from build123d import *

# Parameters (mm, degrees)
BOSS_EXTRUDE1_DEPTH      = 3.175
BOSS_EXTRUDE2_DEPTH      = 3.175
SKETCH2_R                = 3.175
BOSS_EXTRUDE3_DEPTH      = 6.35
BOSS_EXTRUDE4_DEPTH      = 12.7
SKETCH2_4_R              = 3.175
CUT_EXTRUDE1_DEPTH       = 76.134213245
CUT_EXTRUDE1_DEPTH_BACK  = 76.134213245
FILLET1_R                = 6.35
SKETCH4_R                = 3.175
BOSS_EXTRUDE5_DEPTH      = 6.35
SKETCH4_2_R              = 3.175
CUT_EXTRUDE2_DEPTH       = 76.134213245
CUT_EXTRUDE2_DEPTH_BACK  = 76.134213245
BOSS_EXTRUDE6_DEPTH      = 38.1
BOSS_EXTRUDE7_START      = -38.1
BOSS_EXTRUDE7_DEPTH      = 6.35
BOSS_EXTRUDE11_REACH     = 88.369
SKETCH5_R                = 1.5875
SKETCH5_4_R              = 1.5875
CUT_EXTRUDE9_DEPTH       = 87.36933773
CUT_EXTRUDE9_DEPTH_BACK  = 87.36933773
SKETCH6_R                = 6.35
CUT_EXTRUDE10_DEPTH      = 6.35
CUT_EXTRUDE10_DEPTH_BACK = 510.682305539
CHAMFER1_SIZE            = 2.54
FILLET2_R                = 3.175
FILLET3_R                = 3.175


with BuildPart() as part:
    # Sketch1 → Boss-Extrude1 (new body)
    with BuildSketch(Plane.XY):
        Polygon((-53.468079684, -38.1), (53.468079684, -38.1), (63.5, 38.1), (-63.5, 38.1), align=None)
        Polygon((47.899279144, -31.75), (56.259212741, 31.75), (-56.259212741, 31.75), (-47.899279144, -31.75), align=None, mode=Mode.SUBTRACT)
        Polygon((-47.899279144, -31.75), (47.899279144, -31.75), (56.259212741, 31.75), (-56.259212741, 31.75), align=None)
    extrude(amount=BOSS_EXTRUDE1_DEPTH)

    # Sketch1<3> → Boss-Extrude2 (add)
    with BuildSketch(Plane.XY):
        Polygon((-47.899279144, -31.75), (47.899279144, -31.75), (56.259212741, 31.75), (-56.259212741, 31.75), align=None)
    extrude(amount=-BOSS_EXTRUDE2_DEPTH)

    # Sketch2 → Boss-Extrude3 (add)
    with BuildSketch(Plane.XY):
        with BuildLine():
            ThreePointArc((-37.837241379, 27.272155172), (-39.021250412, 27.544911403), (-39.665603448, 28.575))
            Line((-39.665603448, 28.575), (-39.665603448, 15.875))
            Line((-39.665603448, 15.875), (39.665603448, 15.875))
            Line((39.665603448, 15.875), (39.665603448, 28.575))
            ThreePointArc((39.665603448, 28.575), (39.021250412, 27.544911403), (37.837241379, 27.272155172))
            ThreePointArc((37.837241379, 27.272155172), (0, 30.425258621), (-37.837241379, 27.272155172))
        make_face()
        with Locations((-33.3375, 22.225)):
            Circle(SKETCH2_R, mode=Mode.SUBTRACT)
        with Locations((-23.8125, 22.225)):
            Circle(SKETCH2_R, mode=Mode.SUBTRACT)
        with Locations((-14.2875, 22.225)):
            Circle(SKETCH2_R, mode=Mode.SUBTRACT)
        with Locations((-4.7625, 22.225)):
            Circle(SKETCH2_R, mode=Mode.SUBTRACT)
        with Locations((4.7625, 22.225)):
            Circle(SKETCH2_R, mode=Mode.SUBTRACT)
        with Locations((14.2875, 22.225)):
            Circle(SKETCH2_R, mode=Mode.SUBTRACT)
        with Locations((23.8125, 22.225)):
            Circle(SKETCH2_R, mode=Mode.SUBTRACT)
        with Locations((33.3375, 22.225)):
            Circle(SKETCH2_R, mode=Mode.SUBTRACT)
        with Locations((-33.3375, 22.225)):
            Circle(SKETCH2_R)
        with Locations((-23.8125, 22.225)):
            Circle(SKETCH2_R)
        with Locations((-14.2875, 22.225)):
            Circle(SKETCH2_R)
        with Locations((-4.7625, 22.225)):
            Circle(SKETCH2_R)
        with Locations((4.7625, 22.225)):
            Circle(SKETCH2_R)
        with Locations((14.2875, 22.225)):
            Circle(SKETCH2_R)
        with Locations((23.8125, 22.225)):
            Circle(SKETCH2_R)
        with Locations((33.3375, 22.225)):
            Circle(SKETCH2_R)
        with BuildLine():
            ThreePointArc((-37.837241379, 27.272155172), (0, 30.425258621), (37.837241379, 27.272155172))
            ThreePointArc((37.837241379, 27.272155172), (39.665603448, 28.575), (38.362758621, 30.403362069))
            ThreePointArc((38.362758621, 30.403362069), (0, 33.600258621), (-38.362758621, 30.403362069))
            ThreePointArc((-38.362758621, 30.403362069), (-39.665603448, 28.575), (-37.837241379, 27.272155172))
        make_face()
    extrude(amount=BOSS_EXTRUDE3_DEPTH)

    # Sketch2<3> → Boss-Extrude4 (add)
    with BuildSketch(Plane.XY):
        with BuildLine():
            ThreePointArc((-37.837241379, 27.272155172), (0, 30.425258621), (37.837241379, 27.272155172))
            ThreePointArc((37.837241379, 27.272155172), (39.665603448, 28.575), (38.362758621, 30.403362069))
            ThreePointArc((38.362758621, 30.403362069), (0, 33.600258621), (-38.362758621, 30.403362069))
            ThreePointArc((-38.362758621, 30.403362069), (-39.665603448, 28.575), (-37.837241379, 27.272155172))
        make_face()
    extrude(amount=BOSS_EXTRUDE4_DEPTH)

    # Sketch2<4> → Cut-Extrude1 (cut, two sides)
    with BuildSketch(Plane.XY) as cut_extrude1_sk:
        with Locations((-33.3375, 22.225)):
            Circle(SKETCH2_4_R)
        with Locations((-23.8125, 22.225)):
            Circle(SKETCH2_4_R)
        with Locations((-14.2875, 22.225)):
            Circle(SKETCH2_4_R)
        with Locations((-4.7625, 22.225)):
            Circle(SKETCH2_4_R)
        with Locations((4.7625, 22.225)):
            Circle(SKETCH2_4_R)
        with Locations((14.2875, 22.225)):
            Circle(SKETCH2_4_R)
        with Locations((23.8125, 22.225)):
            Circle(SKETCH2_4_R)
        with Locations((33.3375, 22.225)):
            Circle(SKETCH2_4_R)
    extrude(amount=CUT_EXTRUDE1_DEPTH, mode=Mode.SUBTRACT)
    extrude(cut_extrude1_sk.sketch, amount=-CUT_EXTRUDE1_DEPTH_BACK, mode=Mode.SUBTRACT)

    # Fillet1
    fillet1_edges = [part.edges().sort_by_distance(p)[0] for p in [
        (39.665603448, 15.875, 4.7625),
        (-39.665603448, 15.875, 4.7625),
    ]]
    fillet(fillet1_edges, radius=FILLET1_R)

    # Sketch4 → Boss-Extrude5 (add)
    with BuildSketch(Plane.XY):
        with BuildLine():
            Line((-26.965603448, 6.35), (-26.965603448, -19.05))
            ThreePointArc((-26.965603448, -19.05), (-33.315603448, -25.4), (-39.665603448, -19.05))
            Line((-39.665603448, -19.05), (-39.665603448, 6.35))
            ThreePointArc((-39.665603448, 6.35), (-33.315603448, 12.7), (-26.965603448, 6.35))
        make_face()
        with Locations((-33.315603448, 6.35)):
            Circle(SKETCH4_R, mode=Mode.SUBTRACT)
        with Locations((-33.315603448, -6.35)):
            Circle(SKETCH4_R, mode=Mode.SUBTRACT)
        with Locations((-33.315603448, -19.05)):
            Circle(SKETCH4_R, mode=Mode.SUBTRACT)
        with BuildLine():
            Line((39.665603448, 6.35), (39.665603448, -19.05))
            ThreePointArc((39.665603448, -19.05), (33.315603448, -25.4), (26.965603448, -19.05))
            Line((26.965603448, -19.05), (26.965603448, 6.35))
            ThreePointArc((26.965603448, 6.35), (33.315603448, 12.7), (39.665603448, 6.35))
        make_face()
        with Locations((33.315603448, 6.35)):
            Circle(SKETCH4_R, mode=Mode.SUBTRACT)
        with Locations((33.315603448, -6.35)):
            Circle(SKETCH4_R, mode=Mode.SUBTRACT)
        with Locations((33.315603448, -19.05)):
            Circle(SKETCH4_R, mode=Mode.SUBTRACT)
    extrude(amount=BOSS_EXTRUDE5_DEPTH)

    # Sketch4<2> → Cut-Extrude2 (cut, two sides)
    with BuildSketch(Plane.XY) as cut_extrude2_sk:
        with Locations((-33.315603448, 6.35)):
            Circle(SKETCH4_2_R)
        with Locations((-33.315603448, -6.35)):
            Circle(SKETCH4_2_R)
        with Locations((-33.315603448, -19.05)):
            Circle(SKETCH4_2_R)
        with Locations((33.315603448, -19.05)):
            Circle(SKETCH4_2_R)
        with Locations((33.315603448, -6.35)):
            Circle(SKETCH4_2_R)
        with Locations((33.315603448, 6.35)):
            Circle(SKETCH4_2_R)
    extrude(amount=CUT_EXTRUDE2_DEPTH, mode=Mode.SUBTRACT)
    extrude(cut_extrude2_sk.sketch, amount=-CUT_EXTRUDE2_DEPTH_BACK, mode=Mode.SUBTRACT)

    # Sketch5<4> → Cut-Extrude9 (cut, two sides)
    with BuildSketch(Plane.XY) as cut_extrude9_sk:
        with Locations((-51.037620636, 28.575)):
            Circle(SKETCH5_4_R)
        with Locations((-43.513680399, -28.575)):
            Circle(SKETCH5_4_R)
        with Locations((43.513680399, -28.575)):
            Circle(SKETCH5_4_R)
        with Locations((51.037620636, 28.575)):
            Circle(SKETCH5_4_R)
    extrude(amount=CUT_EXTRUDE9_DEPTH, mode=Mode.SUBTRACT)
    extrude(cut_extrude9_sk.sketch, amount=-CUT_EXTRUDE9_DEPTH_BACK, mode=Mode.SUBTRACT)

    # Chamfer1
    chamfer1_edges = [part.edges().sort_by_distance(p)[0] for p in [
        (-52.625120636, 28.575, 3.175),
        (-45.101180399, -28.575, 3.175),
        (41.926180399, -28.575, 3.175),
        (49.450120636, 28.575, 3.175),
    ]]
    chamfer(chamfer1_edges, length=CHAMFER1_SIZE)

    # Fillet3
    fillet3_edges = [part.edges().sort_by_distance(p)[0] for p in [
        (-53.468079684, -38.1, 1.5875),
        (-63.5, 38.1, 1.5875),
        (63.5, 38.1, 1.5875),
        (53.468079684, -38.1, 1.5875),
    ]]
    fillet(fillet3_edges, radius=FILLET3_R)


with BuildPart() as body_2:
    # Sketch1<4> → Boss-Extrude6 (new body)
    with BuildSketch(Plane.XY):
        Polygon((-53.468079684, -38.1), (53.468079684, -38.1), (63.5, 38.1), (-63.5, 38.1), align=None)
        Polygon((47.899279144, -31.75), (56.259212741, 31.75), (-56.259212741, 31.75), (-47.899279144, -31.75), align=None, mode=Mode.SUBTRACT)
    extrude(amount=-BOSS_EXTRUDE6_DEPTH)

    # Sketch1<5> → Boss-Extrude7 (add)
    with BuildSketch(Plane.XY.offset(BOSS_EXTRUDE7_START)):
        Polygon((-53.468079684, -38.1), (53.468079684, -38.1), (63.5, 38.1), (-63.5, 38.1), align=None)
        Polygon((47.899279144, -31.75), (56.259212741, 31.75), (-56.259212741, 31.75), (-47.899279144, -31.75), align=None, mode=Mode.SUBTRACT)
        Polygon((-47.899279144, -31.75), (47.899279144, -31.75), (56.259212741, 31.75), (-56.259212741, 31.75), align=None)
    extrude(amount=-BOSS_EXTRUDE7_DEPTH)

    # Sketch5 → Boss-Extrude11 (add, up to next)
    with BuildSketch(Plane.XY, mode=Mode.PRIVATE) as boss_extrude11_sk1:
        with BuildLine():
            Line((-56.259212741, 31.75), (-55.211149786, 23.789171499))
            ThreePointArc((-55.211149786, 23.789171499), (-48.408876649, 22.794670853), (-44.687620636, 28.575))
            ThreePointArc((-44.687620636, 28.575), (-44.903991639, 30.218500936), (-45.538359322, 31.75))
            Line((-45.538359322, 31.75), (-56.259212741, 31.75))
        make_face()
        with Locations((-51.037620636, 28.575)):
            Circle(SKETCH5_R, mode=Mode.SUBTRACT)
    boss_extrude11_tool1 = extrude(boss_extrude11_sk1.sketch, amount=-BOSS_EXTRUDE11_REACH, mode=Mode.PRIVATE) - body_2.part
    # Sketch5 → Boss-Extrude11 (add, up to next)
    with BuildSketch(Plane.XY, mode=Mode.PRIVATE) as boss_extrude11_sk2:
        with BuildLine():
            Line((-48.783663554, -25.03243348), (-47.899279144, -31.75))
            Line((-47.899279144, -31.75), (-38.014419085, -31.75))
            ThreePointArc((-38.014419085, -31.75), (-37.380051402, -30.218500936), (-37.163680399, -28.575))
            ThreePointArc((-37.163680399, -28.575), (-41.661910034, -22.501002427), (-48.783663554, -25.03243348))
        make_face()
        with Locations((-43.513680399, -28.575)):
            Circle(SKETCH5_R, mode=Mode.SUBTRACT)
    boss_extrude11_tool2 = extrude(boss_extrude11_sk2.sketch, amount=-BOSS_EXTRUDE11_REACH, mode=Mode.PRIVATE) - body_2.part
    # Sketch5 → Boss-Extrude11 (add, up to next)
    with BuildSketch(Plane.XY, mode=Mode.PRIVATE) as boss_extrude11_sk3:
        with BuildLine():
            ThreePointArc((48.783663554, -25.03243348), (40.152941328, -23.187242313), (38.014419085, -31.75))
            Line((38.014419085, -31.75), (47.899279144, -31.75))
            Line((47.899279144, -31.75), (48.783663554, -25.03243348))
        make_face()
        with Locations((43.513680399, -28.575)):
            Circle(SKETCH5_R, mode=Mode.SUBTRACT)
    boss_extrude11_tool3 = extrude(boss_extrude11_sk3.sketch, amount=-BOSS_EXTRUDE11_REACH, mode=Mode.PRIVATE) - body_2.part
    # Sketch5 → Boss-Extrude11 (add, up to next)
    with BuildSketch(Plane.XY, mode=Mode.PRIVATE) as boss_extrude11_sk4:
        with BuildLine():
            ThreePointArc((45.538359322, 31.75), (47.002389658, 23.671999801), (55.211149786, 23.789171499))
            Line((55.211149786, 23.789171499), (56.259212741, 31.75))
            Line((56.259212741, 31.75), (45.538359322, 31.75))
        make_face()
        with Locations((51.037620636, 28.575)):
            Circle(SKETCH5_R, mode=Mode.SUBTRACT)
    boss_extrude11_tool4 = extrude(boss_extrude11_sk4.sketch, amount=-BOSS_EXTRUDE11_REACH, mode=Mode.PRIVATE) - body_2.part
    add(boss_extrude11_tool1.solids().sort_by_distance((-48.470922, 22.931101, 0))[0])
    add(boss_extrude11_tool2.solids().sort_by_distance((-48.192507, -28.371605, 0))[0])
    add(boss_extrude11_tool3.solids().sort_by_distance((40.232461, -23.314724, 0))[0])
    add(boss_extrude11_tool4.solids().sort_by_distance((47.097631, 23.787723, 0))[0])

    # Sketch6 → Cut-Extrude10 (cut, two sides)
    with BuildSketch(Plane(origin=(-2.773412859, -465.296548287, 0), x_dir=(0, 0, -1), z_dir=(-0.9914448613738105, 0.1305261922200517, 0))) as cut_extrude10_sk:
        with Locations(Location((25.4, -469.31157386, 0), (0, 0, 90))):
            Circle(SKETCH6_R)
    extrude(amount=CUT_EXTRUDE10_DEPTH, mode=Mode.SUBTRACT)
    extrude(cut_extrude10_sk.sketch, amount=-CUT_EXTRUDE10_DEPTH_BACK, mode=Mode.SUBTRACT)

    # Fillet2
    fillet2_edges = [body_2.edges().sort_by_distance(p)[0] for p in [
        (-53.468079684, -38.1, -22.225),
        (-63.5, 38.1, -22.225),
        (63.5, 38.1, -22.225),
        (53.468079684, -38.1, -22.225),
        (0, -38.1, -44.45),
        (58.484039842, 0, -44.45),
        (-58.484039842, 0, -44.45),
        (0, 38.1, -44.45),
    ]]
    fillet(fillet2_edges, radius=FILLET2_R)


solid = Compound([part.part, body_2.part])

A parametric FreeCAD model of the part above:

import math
import FreeCAD as App
import Part
import Sketcher

V = App.Vector
Q = App.Units.Quantity


def edges_at(feature, points):
    """Names of the edges that pass closest to the given points."""
    edges = feature.Shape.Edges
    near = lambda p: min(range(len(edges)), key=lambda i: edges[i].distToShape(Part.Vertex(*p))[0])
    return sorted({f"Edge{near(p) + 1}" for p in points})

doc = App.newDocument("Part")
params = doc.addObject("Spreadsheet::Sheet", "Params")
for row, (alias, value) in enumerate([
    ("sketch1_width", "5 in"),
    ("pad1_length", "0.125 in"),
    ("pad2_length", "0.125 in"),
    ("sketch3_height", "0.5 in"),
    ("sketch3_radius", "0.0625 in"),
    ("sketch3_radius2", "9.125 in"),
    ("pad3_length", "0.25 in"),
    ("sketch4_radius", "9 in"),
    ("sketch4_radius2", "0.0625 in"),
    ("pad4_length", "0.5 in"),
    ("sketch5_diameter", "0.25 in"),
    ("fillet_radius", "0.25 in"),
    ("sketch6_diameter", "0.25 in"),
    ("sketch6_height", "1 in"),
    ("sketch6_radius", "0.25 in"),
    ("pad5_length", "0.25 in"),
    ("sketch7_diameter", "0.25 in"),
    ("sketch8_diameter", "0.125 in"),
    ("chamfer_size", "0.1 in"),
    ("fillet2_radius", "0.125 in"),
    ("sketch9_width", "5 in"),
    ("pad6_length", "1.5 in"),
    ("sketch10_width", "5 in"),
    ("pad7_length", "0.25 in"),
    ("sketch11_radius", "0.25 in"),
    ("sketch11_diameter", "0.125 in"),
    ("sketch12_radius", "0.25 in"),
    ("sketch12_diameter", "0.125 in"),
    ("sketch13_radius", "0.25 in"),
    ("sketch13_diameter", "0.125 in"),
    ("sketch14_radius", "0.25 in"),
    ("sketch14_diameter", "0.125 in"),
    ("sketch15_diameter", "0.5 in"),
    ("pocket4_length", "0.25 in"),
    ("pocket4_length2", "510.682306 mm"),
    ("fillet3_radius", "0.125 in"),
], start=1):
    params.set(f"A{row}", alias)
    params.set(f"B{row}", "=" + value)
    params.setAlias(f"B{row}", alias)

body = doc.addObject("PartDesign::Body", "Body")

sketch1 = body.newObject("Sketcher::SketchObject", "Sketch")
sketch1.AttachmentSupport = (doc.getObject("XY_Plane"), [""])
sketch1.MapMode = "FlatFace"
sketch1.addGeometry([
    Part.LineSegment(V(-53, -38, 0), V(53, -38, 0)),
    Part.LineSegment(V(53, -38, 0), V(64, 38, 0)),
    Part.LineSegment(V(64, 38, 0), V(-64, 38, 0)),
    Part.LineSegment(V(-64, 38, 0), V(-53, -38, 0)),
], False)
sketch1.addConstraint([
    Sketcher.Constraint("Coincident", 0, 2, 1, 1),
    Sketcher.Constraint("Coincident", 1, 2, 2, 1),
    Sketcher.Constraint("Coincident", 2, 2, 3, 1),
    Sketcher.Constraint("Coincident", 3, 2, 0, 1),
    Sketcher.Constraint("Horizontal", 0),
    Sketcher.Constraint("Horizontal", 2),
    Sketcher.Constraint("Equal", 1, 3),
    Sketcher.Constraint("DistanceX", 2, 2, 2, 1, Q("5 in")),
    Sketcher.Constraint("DistanceY", 0, 2, 1, 2, Q("3 in")),
    Sketcher.Constraint("DistanceY", 0, 2, -1, 1, Q("1.5 in")),
    Sketcher.Constraint("DistanceX", -1, 1, 1, 2, Q("2.5 in")),
    Sketcher.Constraint("Angle", 1, Q("82.5 deg")),
])
sketch1.setExpression("Constraints[7]", "Params.sketch1_width")
pad1 = body.newObject("PartDesign::Pad", "Pad")
pad1.Profile = sketch1
pad1.setExpression("Length", "Params.pad1_length")

sketch2 = body.newObject("Sketcher::SketchObject", "Sketch001")
sketch2.AttachmentSupport = (doc.getObject("XY_Plane"), [""])
sketch2.MapMode = "FlatFace"
sketch2.addGeometry([
    Part.LineSegment(V(-48, -32, 0), V(48, -32, 0)),
    Part.LineSegment(V(48, -32, 0), V(56, 32, 0)),
    Part.LineSegment(V(56, 32, 0), V(-56, 32, 0)),
    Part.LineSegment(V(-56, 32, 0), V(-48, -32, 0)),
], False)
sketch2.addConstraint([
    Sketcher.Constraint("Coincident", 0, 2, 1, 1),
    Sketcher.Constraint("Coincident", 1, 2, 2, 1),
    Sketcher.Constraint("Coincident", 2, 2, 3, 1),
    Sketcher.Constraint("Coincident", 3, 2, 0, 1),
    Sketcher.Constraint("Horizontal", 0),
    Sketcher.Constraint("Horizontal", 2),
    Sketcher.Constraint("Equal", 1, 3),
    Sketcher.Constraint("Angle", 1, Q("82.5 deg")),
    Sketcher.Constraint("DistanceY", 0, 2, 1, 2, Q("2.5 in")),
    Sketcher.Constraint("DistanceY", 0, 2, -1, 1, Q("1.25 in")),
    Sketcher.Constraint("DistanceX", 0, 1, 0, 2, Q("95.798558 mm")),
    Sketcher.Constraint("DistanceX", -1, 1, 0, 2, Q("47.899279 mm")),
])
pad2 = body.newObject("PartDesign::Pad", "Pad001")
pad2.Profile = sketch2
pad2.setExpression("Length", "Params.pad2_length")
pad2.Reversed = True

sketch3 = body.newObject("Sketcher::SketchObject", "Sketch002")
sketch3.AttachmentSupport = (doc.getObject("XY_Plane"), [""])
sketch3.MapMode = "FlatFace"
sketch3.addGeometry([
    Part.LineSegment(V(-39.7, 28.6, 0), V(-39.7, 15.9, 0)),
    Part.LineSegment(V(-39.7, 15.9, 0), V(39.7, 15.9, 0)),
    Part.LineSegment(V(39.7, 15.9, 0), V(39.7, 28.6, 0)),
    Part.ArcOfCircle(Part.Circle(V(38.1, 28.8, 0), V(0, 0, 1), 1.6), math.radians(-10), math.radians(80)),
    Part.ArcOfCircle(Part.Circle(V(0, -198.2, 0), V(0, 0, 1), 231.8), math.radians(80.47), math.radians(99.53)),
    Part.ArcOfCircle(Part.Circle(V(-38.1, 28.8, 0), V(0, 0, 1), 1.6), math.radians(100), math.radians(190)),
], False)
sketch3.addConstraint([
    Sketcher.Constraint("Coincident", 0, 2, 1, 1),
    Sketcher.Constraint("Coincident", 1, 2, 2, 1),
    Sketcher.Constraint("Coincident", 2, 2, 3, 1),
    Sketcher.Constraint("Tangent", 3, 2, 4, 1),
    Sketcher.Constraint("Tangent", 4, 2, 5, 1),
    Sketcher.Constraint("Coincident", 5, 2, 0, 1),
    Sketcher.Constraint("Vertical", 0),
    Sketcher.Constraint("Horizontal", 1),
    Sketcher.Constraint("Vertical", 2),
    Sketcher.Constraint("Equal", 3, 5),
    Sketcher.Constraint("Symmetric", 3, 3, 5, 3, -2),
    Sketcher.Constraint("Horizontal", 2, 2, 5, 2),
    Sketcher.Constraint("DistanceY", 0, 2, 0, 1, Q("0.5 in")),
    Sketcher.Constraint("Radius", 3, Q("0.0625 in")),
    Sketcher.Constraint("Radius", 4, Q("9.125 in")),
    Sketcher.Constraint("DistanceX", 5, 3, 3, 3, Q("3 in")),
    Sketcher.Constraint("DistanceY", -1, 1, 0, 2, Q("0.625 in")),
    Sketcher.Constraint("DistanceX", 1, 1, 1, 2, Q("79.331207 mm")),
])
sketch3.setExpression("Constraints[12]", "Params.sketch3_height")
sketch3.setExpression("Constraints[13]", "Params.sketch3_radius")
sketch3.setExpression("Constraints[14]", "Params.sketch3_radius2")
pad3 = body.newObject("PartDesign::Pad", "Pad002")
pad3.Profile = sketch3
pad3.setExpression("Length", "Params.pad3_length")

sketch4 = body.newObject("Sketcher::SketchObject", "Sketch003")
sketch4.AttachmentSupport = (doc.getObject("XY_Plane"), [""])
sketch4.MapMode = "FlatFace"
sketch4.addGeometry([
    Part.ArcOfCircle(Part.Circle(V(0, -198.2, 0), V(0, 0, 1), 228.6), math.radians(80.47), math.radians(99.53)),
    Part.ArcOfCircle(Part.Circle(V(38.1, 28.8, 0), V(0, 0, 1), 1.6), math.radians(-100), math.radians(80)),
    Part.ArcOfCircle(Part.Circle(V(0, -198.2, 0), V(0, 0, 1), 231.8), math.radians(80.47), math.radians(99.53)),
    Part.ArcOfCircle(Part.Circle(V(-38.1, 28.8, 0), V(0, 0, 1), 1.6), math.radians(100), math.radians(280)),
], False)
sketch4.addConstraint([
    Sketcher.Constraint("Tangent", 0, 1, 1, 1),
    Sketcher.Constraint("Tangent", 1, 2, 2, 1),
    Sketcher.Constraint("Tangent", 2, 2, 3, 1),
    Sketcher.Constraint("Tangent", 3, 2, 0, 2),
    Sketcher.Constraint("Coincident", 2, 3, 0, 3),
    Sketcher.Constraint("Symmetric", 1, 3, 3, 3, -2),
    Sketcher.Constraint("Radius", 0, Q("9 in")),
    Sketcher.Constraint("Radius", 1, Q("0.0625 in")),
    Sketcher.Constraint("DistanceX", 3, 3, 1, 3, Q("3 in")),
    Sketcher.Constraint("DistanceY", 0, 3, -1, 1, Q("198.174741 mm")),
])
sketch4.setExpression("Constraints[6]", "Params.sketch4_radius")
sketch4.setExpression("Constraints[7]", "Params.sketch4_radius2")
pad4 = body.newObject("PartDesign::Pad", "Pad003")
pad4.Profile = sketch4
pad4.setExpression("Length", "Params.pad4_length")

sketch5 = body.newObject("Sketcher::SketchObject", "Sketch004")
sketch5.AttachmentSupport = (doc.getObject("XY_Plane"), [""])
sketch5.MapMode = "FlatFace"
sketch5.addGeometry([
    Part.Circle(V(-33.3, 22.2, 0), V(0, 0, 1), 3.2),
    Part.Circle(V(-23.8, 22.2, 0), V(0, 0, 1), 3.2),
    Part.Circle(V(-14.3, 22.2, 0), V(0, 0, 1), 3.2),
    Part.Circle(V(-4.8, 22.2, 0), V(0, 0, 1), 3.2),
    Part.Circle(V(4.8, 22.2, 0), V(0, 0, 1), 3.2),
    Part.Circle(V(14.3, 22.2, 0), V(0, 0, 1), 3.2),
    Part.Circle(V(23.8, 22.2, 0), V(0, 0, 1), 3.2),
    Part.Circle(V(33.3, 22.2, 0), V(0, 0, 1), 3.2),
], False)
sketch5.addConstraint([
    Sketcher.Constraint("Equal", 0, 1),
    Sketcher.Constraint("Equal", 1, 2),
    Sketcher.Constraint("Equal", 2, 3),
    Sketcher.Constraint("Equal", 3, 4),
    Sketcher.Constraint("Equal", 4, 5),
    Sketcher.Constraint("Equal", 5, 6),
    Sketcher.Constraint("Equal", 6, 7),
    Sketcher.Constraint("Symmetric", 3, 3, 4, 3, -2),
    Sketcher.Constraint("Symmetric", 2, 3, 5, 3, -2),
    Sketcher.Constraint("Symmetric", 1, 3, 6, 3, -2),
    Sketcher.Constraint("Symmetric", 0, 3, 7, 3, -2),
    Sketcher.Constraint("Horizontal", 0, 3, 1, 3),
    Sketcher.Constraint("Horizontal", 1, 3, 2, 3),
    Sketcher.Constraint("Horizontal", 2, 3, 3, 3),
    Sketcher.Constraint("Diameter", 0, Q("0.25 in")),
    Sketcher.Constraint("DistanceX", 0, 3, 4, 3, Q("1.5 in")),
    Sketcher.Constraint("DistanceX", 1, 3, 5, 3, Q("1.5 in")),
    Sketcher.Constraint("DistanceX", 0, 3, 2, 3, Q("0.75 in")),
    Sketcher.Constraint("DistanceX", 0, 3, -1, 1, Q("1.3125 in")),
    Sketcher.Constraint("DistanceY", -1, 1, 0, 3, Q("0.875 in")),
])
sketch5.setExpression("Constraints[14]", "Params.sketch5_diameter")
pocket1 = body.newObject("PartDesign::Pocket", "Pocket")
pocket1.Profile = sketch5
pocket1.Type = "ThroughAll"
pocket1.Midplane = True
doc.recompute()

fillet = body.newObject("PartDesign::Fillet", "Fillet")
fillet.Base = (pocket1, edges_at(pocket1, [(39.666, 15.875, 4.763), (-39.666, 15.875, 4.763)]))
fillet.setExpression("Radius", "Params.fillet_radius")

sketch6 = body.newObject("Sketcher::SketchObject", "Sketch005")
sketch6.AttachmentSupport = (doc.getObject("XY_Plane"), [""])
sketch6.MapMode = "FlatFace"
sketch6.addGeometry([
    Part.LineSegment(V(-27, -19.1, 0), V(-27, 6.3, 0)),
    Part.ArcOfCircle(Part.Circle(V(-33.3, 6.3, 0), V(0, 0, 1), 6.3), math.radians(0), math.radians(180)),
    Part.LineSegment(V(-39.7, 6.3, 0), V(-39.7, -19.1, 0)),
    Part.ArcOfCircle(Part.Circle(V(-33.3, -19.1, 0), V(0, 0, 1), 6.3), math.radians(180), math.radians(360)),
    Part.Circle(V(-33.3, -19.1, 0), V(0, 0, 1), 3.2),
    Part.Circle(V(-33.3, -6.3, 0), V(0, 0, 1), 3.2),
    Part.Circle(V(-33.3, 6.3, 0), V(0, 0, 1), 3.2),
    Part.LineSegment(V(39.7, -19.1, 0), V(39.7, 6.3, 0)),
    Part.ArcOfCircle(Part.Circle(V(33.3, 6.3, 0), V(0, 0, 1), 6.3), math.radians(0), math.radians(180)),
    Part.LineSegment(V(27, 6.3, 0), V(27, -19.1, 0)),
    Part.ArcOfCircle(Part.Circle(V(33.3, -19.1, 0), V(0, 0, 1), 6.3), math.radians(180), math.radians(360)),
    Part.Circle(V(33.3, -19.1, 0), V(0, 0, 1), 3.2),
    Part.Circle(V(33.3, -6.3, 0), V(0, 0, 1), 3.2),
    Part.Circle(V(33.3, 6.3, 0), V(0, 0, 1), 3.2),
], False)
sketch6.addConstraint([
    Sketcher.Constraint("Tangent", 0, 2, 1, 1),
    Sketcher.Constraint("Tangent", 1, 2, 2, 1),
    Sketcher.Constraint("Tangent", 2, 2, 3, 1),
    Sketcher.Constraint("Tangent", 3, 2, 0, 1),
    Sketcher.Constraint("Tangent", 7, 2, 8, 1),
    Sketcher.Constraint("Tangent", 8, 2, 9, 1),
    Sketcher.Constraint("Tangent", 9, 2, 10, 1),
    Sketcher.Constraint("Tangent", 10, 2, 7, 1),
    Sketcher.Constraint("Vertical", 0),
    Sketcher.Constraint("Vertical", 2),
    Sketcher.Constraint("Vertical", 7),
    Sketcher.Constraint("Vertical", 9),
    Sketcher.Constraint("Coincident", 4, 3, 3, 3),
    Sketcher.Constraint("Coincident", 6, 3, 1, 3),
    Sketcher.Constraint("Coincident", 11, 3, 10, 3),
    Sketcher.Constraint("Coincident", 13, 3, 8, 3),
    Sketcher.Constraint("Equal", 4, 5),
    Sketcher.Constraint("Equal", 5, 6),
    Sketcher.Constraint("Equal", 3, 8),
    Sketcher.Constraint("Equal", 6, 11),
    Sketcher.Constraint("Equal", 11, 12),
    Sketcher.Constraint("Equal", 12, 13),
    Sketcher.Constraint("Symmetric", 5, 3, 8, 3, -1, 1),
    Sketcher.Constraint("Symmetric", 1, 3, 12, 3, -1, 1),
    Sketcher.Constraint("Symmetric", 1, 3, 8, 3, -2),
    Sketcher.Constraint("Horizontal", 4, 3, 10, 3),
    Sketcher.Constraint("Diameter", 4, Q("0.25 in")),
    Sketcher.Constraint("DistanceY", 0, 1, 0, 2, Q("1 in")),
    Sketcher.Constraint("Radius", 1, Q("0.25 in")),
    Sketcher.Constraint("DistanceY", 5, 3, 1, 3, Q("0.5 in")),
    Sketcher.Constraint("DistanceX", 1, 3, -1, 1, Q("33.315603 mm")),
])
sketch6.setExpression("Constraints[26]", "Params.sketch6_diameter")
sketch6.setExpression("Constraints[27]", "Params.sketch6_height")
sketch6.setExpression("Constraints[28]", "Params.sketch6_radius")
pad5 = body.newObject("PartDesign::Pad", "Pad004")
pad5.Profile = sketch6
pad5.setExpression("Length", "Params.pad5_length")

sketch7 = body.newObject("Sketcher::SketchObject", "Sketch006")
sketch7.AttachmentSupport = (doc.getObject("XY_Plane"), [""])
sketch7.MapMode = "FlatFace"
sketch7.addGeometry([
    Part.Circle(V(-33.3, 6.3, 0), V(0, 0, 1), 3.2),
    Part.Circle(V(-33.3, -6.3, 0), V(0, 0, 1), 3.2),
    Part.Circle(V(-33.3, -19.1, 0), V(0, 0, 1), 3.2),
    Part.Circle(V(33.3, -19.1, 0), V(0, 0, 1), 3.2),
    Part.Circle(V(33.3, -6.3, 0), V(0, 0, 1), 3.2),
    Part.Circle(V(33.3, 6.3, 0), V(0, 0, 1), 3.2),
], False)
sketch7.addConstraint([
    Sketcher.Constraint("Equal", 0, 1),
    Sketcher.Constraint("Equal", 1, 2),
    Sketcher.Constraint("Equal", 2, 3),
    Sketcher.Constraint("Equal", 3, 4),
    Sketcher.Constraint("Equal", 4, 5),
    Sketcher.Constraint("Symmetric", 0, 3, 4, 3, -1, 1),
    Sketcher.Constraint("Symmetric", 1, 3, 5, 3, -1, 1),
    Sketcher.Constraint("Symmetric", 2, 3, 3, 3, -2),
    Sketcher.Constraint("Symmetric", 1, 3, 4, 3, -2),
    Sketcher.Constraint("Vertical", 1, 3, 2, 3),
    Sketcher.Constraint("Diameter", 0, Q("0.25 in")),
    Sketcher.Constraint("DistanceY", 2, 3, 0, 3, Q("1 in")),
    Sketcher.Constraint("DistanceY", 1, 3, 0, 3, Q("0.5 in")),
    Sketcher.Constraint("DistanceX", 0, 3, -1, 1, Q("33.315603 mm")),
])
sketch7.setExpression("Constraints[10]", "Params.sketch7_diameter")
pocket2 = body.newObject("PartDesign::Pocket", "Pocket001")
pocket2.Profile = sketch7
pocket2.Type = "ThroughAll"
pocket2.Midplane = True

sketch8 = body.newObject("Sketcher::SketchObject", "Sketch007")
sketch8.AttachmentSupport = (doc.getObject("XY_Plane"), [""])
sketch8.MapMode = "FlatFace"
sketch8.addGeometry([
    Part.Circle(V(-51, 28.6, 0), V(0, 0, 1), 1.6),
    Part.Circle(V(-43.5, -28.6, 0), V(0, 0, 1), 1.6),
    Part.Circle(V(43.5, -28.6, 0), V(0, 0, 1), 1.6),
    Part.Circle(V(51, 28.6, 0), V(0, 0, 1), 1.6),
], False)
sketch8.addConstraint([
    Sketcher.Constraint("Equal", 0, 1),
    Sketcher.Constraint("Equal", 1, 2),
    Sketcher.Constraint("Equal", 2, 3),
    Sketcher.Constraint("Symmetric", 1, 3, 2, 3, -2),
    Sketcher.Constraint("Symmetric", 0, 3, 3, 3, -2),
    Sketcher.Constraint("Diameter", 0, Q("0.125 in")),
    Sketcher.Constraint("DistanceY", 1, 3, 0, 3, Q("2.25 in")),
    Sketcher.Constraint("DistanceY", -1, 1, 0, 3, Q("1.125 in")),
    Sketcher.Constraint("DistanceX", 0, 3, 2, 3, Q("94.551301 mm")),
    Sketcher.Constraint("DistanceX", 0, 3, -1, 1, Q("51.037621 mm")),
])
sketch8.setExpression("Constraints[5]", "Params.sketch8_diameter")
pocket3 = body.newObject("PartDesign::Pocket", "Pocket002")
pocket3.Profile = sketch8
pocket3.Type = "ThroughAll"
pocket3.Midplane = True
doc.recompute()

chamfer = body.newObject("PartDesign::Chamfer", "Chamfer")
chamfer.Base = (pocket3, edges_at(pocket3, [
    (-52.625, 28.575, 3.175),
    (-45.101, -28.575, 3.175),
    (41.926, -28.575, 3.175),
    (49.45, 28.575, 3.175),
]))
chamfer.setExpression("Size", "Params.chamfer_size")
doc.recompute()

fillet2 = body.newObject("PartDesign::Fillet", "Fillet001")
fillet2.Base = (chamfer, edges_at(chamfer, [
    (-53.468, -38.1, 1.587),
    (-63.5, 38.1, 1.587),
    (63.5, 38.1, 1.587),
    (53.468, -38.1, 1.587),
]))
fillet2.setExpression("Radius", "Params.fillet2_radius")
body2 = doc.addObject("PartDesign::Body", "Body001")

sketch9 = body2.newObject("Sketcher::SketchObject", "Sketch008")
sketch9.AttachmentSupport = (doc.getObject("XY_Plane001"), [""])
sketch9.MapMode = "FlatFace"
sketch9.addGeometry([
    Part.LineSegment(V(-53, -38, 0), V(53, -38, 0)),
    Part.LineSegment(V(53, -38, 0), V(64, 38, 0)),
    Part.LineSegment(V(64, 38, 0), V(-64, 38, 0)),
    Part.LineSegment(V(-64, 38, 0), V(-53, -38, 0)),
    Part.LineSegment(V(56, 32, 0), V(48, -32, 0)),
    Part.LineSegment(V(48, -32, 0), V(-48, -32, 0)),
    Part.LineSegment(V(-48, -32, 0), V(-56, 32, 0)),
    Part.LineSegment(V(-56, 32, 0), V(56, 32, 0)),
], False)
sketch9.addConstraint([
    Sketcher.Constraint("Coincident", 0, 2, 1, 1),
    Sketcher.Constraint("Coincident", 1, 2, 2, 1),
    Sketcher.Constraint("Coincident", 2, 2, 3, 1),
    Sketcher.Constraint("Coincident", 3, 2, 0, 1),
    Sketcher.Constraint("Coincident", 4, 2, 5, 1),
    Sketcher.Constraint("Coincident", 5, 2, 6, 1),
    Sketcher.Constraint("Coincident", 6, 2, 7, 1),
    Sketcher.Constraint("Coincident", 7, 2, 4, 1),
    Sketcher.Constraint("Horizontal", 0),
    Sketcher.Constraint("Horizontal", 2),
    Sketcher.Constraint("Horizontal", 5),
    Sketcher.Constraint("Horizontal", 7),
    Sketcher.Constraint("Parallel", 1, 4),
    Sketcher.Constraint("Parallel", 3, 6),
    Sketcher.Constraint("Equal", 1, 3),
    Sketcher.Constraint("DistanceX", 2, 2, 2, 1, Q("5 in")),
    Sketcher.Constraint("DistanceY", 0, 2, 1, 2, Q("3 in")),
    Sketcher.Constraint("DistanceY", 0, 2, -1, 1, Q("1.5 in")),
    Sketcher.Constraint("DistanceX", -1, 1, 1, 2, Q("2.5 in")),
    Sketcher.Constraint("Angle", 1, Q("82.5 deg")),
    Sketcher.Constraint("DistanceY", 5, 2, 6, 2, Q("2.5 in")),
    Sketcher.Constraint("DistanceY", 4, 2, -1, 1, Q("1.25 in")),
    Sketcher.Constraint("DistanceX", 5, 2, 5, 1, Q("95.798558 mm")),
    Sketcher.Constraint("DistanceX", 4, 2, 0, 2, Q("5.568801 mm")),
])
sketch9.setExpression("Constraints[15]", "Params.sketch9_width")
pad6 = body2.newObject("PartDesign::Pad", "Pad005")
pad6.Profile = sketch9
pad6.setExpression("Length", "Params.pad6_length")
pad6.Reversed = True

sketch10 = body2.newObject("Sketcher::SketchObject", "Sketch009")
sketch10.AttachmentSupport = (doc.getObject("XY_Plane001"), [""])
sketch10.MapMode = "FlatFace"
sketch10.AttachmentOffset = App.Placement(V(0, 0, -1.5 * 25.4), App.Rotation())
sketch10.addGeometry([
    Part.LineSegment(V(-53, -38, 0), V(53, -38, 0)),
    Part.LineSegment(V(53, -38, 0), V(64, 38, 0)),
    Part.LineSegment(V(64, 38, 0), V(-64, 38, 0)),
    Part.LineSegment(V(-64, 38, 0), V(-53, -38, 0)),
], False)
sketch10.addConstraint([
    Sketcher.Constraint("Coincident", 0, 2, 1, 1),
    Sketcher.Constraint("Coincident", 1, 2, 2, 1),
    Sketcher.Constraint("Coincident", 2, 2, 3, 1),
    Sketcher.Constraint("Coincident", 3, 2, 0, 1),
    Sketcher.Constraint("Horizontal", 0),
    Sketcher.Constraint("Horizontal", 2),
    Sketcher.Constraint("Equal", 1, 3),
    Sketcher.Constraint("DistanceX", 2, 2, 2, 1, Q("5 in")),
    Sketcher.Constraint("DistanceY", 0, 2, 1, 2, Q("3 in")),
    Sketcher.Constraint("DistanceY", 0, 2, -1, 1, Q("1.5 in")),
    Sketcher.Constraint("DistanceX", -1, 1, 1, 2, Q("2.5 in")),
    Sketcher.Constraint("Angle", 1, Q("82.5 deg")),
])
sketch10.setExpression("Constraints[7]", "Params.sketch10_width")
pad7 = body2.newObject("PartDesign::Pad", "Pad006")
pad7.Profile = sketch10
pad7.setExpression("Length", "Params.pad7_length")
pad7.Reversed = True

sketch11 = body2.newObject("Sketcher::SketchObject", "Sketch010")
sketch11.AttachmentSupport = (doc.getObject("XY_Plane001"), [""])
sketch11.MapMode = "FlatFace"
sketch11.addGeometry([
    Part.LineSegment(V(-56.3, 31.8, 0), V(-55.2, 23.8, 0)),
    Part.ArcOfCircle(Part.Circle(V(-51, 28.6, 0), V(0, 0, 1), 6.4), math.radians(-131), math.radians(0)),
    Part.ArcOfCircle(Part.Circle(V(-51, 28.6, 0), V(0, 0, 1), 6.4), math.radians(0), math.radians(30)),
    Part.LineSegment(V(-45.5, 31.8, 0), V(-56.3, 31.8, 0)),
    Part.Circle(V(-51, 28.6, 0), V(0, 0, 1), 1.6),
], False)
sketch11.addConstraint([
    Sketcher.Constraint("Coincident", 0, 2, 1, 1),
    Sketcher.Constraint("Tangent", 1, 2, 2, 1),
    Sketcher.Constraint("Coincident", 2, 2, 3, 1),
    Sketcher.Constraint("Coincident", 3, 2, 0, 1),
    Sketcher.Constraint("Horizontal", 3),
    Sketcher.Constraint("Coincident", 4, 3, 1, 3),
    Sketcher.Constraint("Equal", 1, 2),
    Sketcher.Constraint("Horizontal", 4, 3, 1, 2),
    Sketcher.Constraint("Radius", 1, Q("0.25 in")),
    Sketcher.Constraint("Diameter", 4, Q("0.125 in")),
    Sketcher.Constraint("Angle", 0, Q("-82.5 deg")),
    Sketcher.Constraint("DistanceY", -1, 1, 2, 2, Q("1.25 in")),
    Sketcher.Constraint("DistanceY", -1, 1, 1, 3, Q("1.125 in")),
    Sketcher.Constraint("DistanceX", 3, 2, 3, 1, Q("10.720853 mm")),
    Sketcher.Constraint("DistanceX", 1, 3, -1, 1, Q("51.037621 mm")),
])
sketch11.setExpression("Constraints[8]", "Params.sketch11_radius")
sketch11.setExpression("Constraints[9]", "Params.sketch11_diameter")
pad8 = body2.newObject("PartDesign::Pad", "Pad007")
pad8.Profile = sketch11
pad8.Type = "UpToFirst"
pad8.Reversed = True

sketch12 = body2.newObject("Sketcher::SketchObject", "Sketch011")
sketch12.AttachmentSupport = (doc.getObject("XY_Plane001"), [""])
sketch12.MapMode = "FlatFace"
sketch12.addGeometry([
    Part.LineSegment(V(-48.8, -25, 0), V(-47.9, -31.8, 0)),
    Part.LineSegment(V(-47.9, -31.8, 0), V(-38, -31.8, 0)),
    Part.ArcOfCircle(Part.Circle(V(-43.5, -28.6, 0), V(0, 0, 1), 6.4), math.radians(-30), math.radians(0)),
    Part.ArcOfCircle(Part.Circle(V(-43.5, -28.6, 0), V(0, 0, 1), 6.3), math.radians(0), math.radians(146)),
    Part.Circle(V(-43.5, -28.6, 0), V(0, 0, 1), 1.6),
], False)
sketch12.addConstraint([
    Sketcher.Constraint("Coincident", 0, 2, 1, 1),
    Sketcher.Constraint("Coincident", 1, 2, 2, 1),
    Sketcher.Constraint("Tangent", 2, 2, 3, 1),
    Sketcher.Constraint("Coincident", 3, 2, 0, 1),
    Sketcher.Constraint("Horizontal", 1),
    Sketcher.Constraint("Coincident", 4, 3, 2, 3),
    Sketcher.Constraint("Equal", 2, 3),
    Sketcher.Constraint("Horizontal", 4, 3, 2, 2),
    Sketcher.Constraint("Radius", 2, Q("0.25 in")),
    Sketcher.Constraint("Diameter", 4, Q("0.125 in")),
    Sketcher.Constraint("Angle", 0, Q("-82.5 deg")),
    Sketcher.Constraint("DistanceY", 0, 2, -1, 1, Q("1.25 in")),
    Sketcher.Constraint("DistanceY", 2, 3, -1, 1, Q("1.125 in")),
    Sketcher.Constraint("DistanceX", 1, 1, 1, 2, Q("9.88486 mm")),
    Sketcher.Constraint("DistanceX", 2, 3, -1, 1, Q("43.51368 mm")),
])
sketch12.setExpression("Constraints[8]", "Params.sketch12_radius")
sketch12.setExpression("Constraints[9]", "Params.sketch12_diameter")
pad9 = body2.newObject("PartDesign::Pad", "Pad008")
pad9.Profile = sketch12
pad9.Type = "UpToFirst"
pad9.Reversed = True

sketch13 = body2.newObject("Sketcher::SketchObject", "Sketch012")
sketch13.AttachmentSupport = (doc.getObject("XY_Plane001"), [""])
sketch13.MapMode = "FlatFace"
sketch13.addGeometry([
    Part.ArcOfCircle(Part.Circle(V(43.5, -28.6, 0), V(0, 0, 1), 6.3), math.radians(34), math.radians(210)),
    Part.LineSegment(V(38, -31.8, 0), V(47.9, -31.8, 0)),
    Part.LineSegment(V(47.9, -31.8, 0), V(48.8, -25, 0)),
    Part.Circle(V(43.5, -28.6, 0), V(0, 0, 1), 1.6),
], False)
sketch13.addConstraint([
    Sketcher.Constraint("Coincident", 0, 2, 1, 1),
    Sketcher.Constraint("Coincident", 1, 2, 2, 1),
    Sketcher.Constraint("Coincident", 2, 2, 0, 1),
    Sketcher.Constraint("Horizontal", 1),
    Sketcher.Constraint("Coincident", 3, 3, 0, 3),
    Sketcher.Constraint("Radius", 0, Q("0.25 in")),
    Sketcher.Constraint("Diameter", 3, Q("0.125 in")),
    Sketcher.Constraint("Angle", 2, Q("82.5 deg")),
    Sketcher.Constraint("DistanceY", 0, 2, -1, 1, Q("1.25 in")),
    Sketcher.Constraint("DistanceY", 0, 3, -1, 1, Q("1.125 in")),
    Sketcher.Constraint("DistanceX", 1, 1, 1, 2, Q("9.88486 mm")),
    Sketcher.Constraint("DistanceX", -1, 1, 0, 3, Q("43.51368 mm")),
])
sketch13.setExpression("Constraints[5]", "Params.sketch13_radius")
sketch13.setExpression("Constraints[6]", "Params.sketch13_diameter")
pad10 = body2.newObject("PartDesign::Pad", "Pad009")
pad10.Profile = sketch13
pad10.Type = "UpToFirst"
pad10.Reversed = True

sketch14 = body2.newObject("Sketcher::SketchObject", "Sketch013")
sketch14.AttachmentSupport = (doc.getObject("XY_Plane001"), [""])
sketch14.MapMode = "FlatFace"
sketch14.addGeometry([
    Part.ArcOfCircle(Part.Circle(V(51, 28.6, 0), V(0, 0, 1), 6.3), math.radians(150), math.radians(311)),
    Part.LineSegment(V(55.2, 23.8, 0), V(56.3, 31.8, 0)),
    Part.LineSegment(V(56.3, 31.8, 0), V(45.5, 31.8, 0)),
    Part.Circle(V(51, 28.6, 0), V(0, 0, 1), 1.6),
], False)
sketch14.addConstraint([
    Sketcher.Constraint("Coincident", 0, 2, 1, 1),
    Sketcher.Constraint("Coincident", 1, 2, 2, 1),
    Sketcher.Constraint("Coincident", 2, 2, 0, 1),
    Sketcher.Constraint("Horizontal", 2),
    Sketcher.Constraint("Coincident", 3, 3, 0, 3),
    Sketcher.Constraint("Radius", 0, Q("0.25 in")),
    Sketcher.Constraint("Diameter", 3, Q("0.125 in")),
    Sketcher.Constraint("Angle", 1, Q("82.5 deg")),
    Sketcher.Constraint("DistanceY", -1, 1, 1, 2, Q("1.25 in")),
    Sketcher.Constraint("DistanceY", -1, 1, 0, 3, Q("1.125 in")),
    Sketcher.Constraint("DistanceX", 2, 2, 2, 1, Q("10.720853 mm")),
    Sketcher.Constraint("DistanceX", -1, 1, 0, 3, Q("51.037621 mm")),
])
sketch14.setExpression("Constraints[5]", "Params.sketch14_radius")
sketch14.setExpression("Constraints[6]", "Params.sketch14_diameter")
pad11 = body2.newObject("PartDesign::Pad", "Pad010")
pad11.Profile = sketch14
pad11.Type = "UpToFirst"
pad11.Reversed = True

sketch15 = body2.newObject("Sketcher::SketchObject", "Sketch014")
sketch15.Placement = App.Placement(V(-2.773413, -465.296548, 0), App.Rotation(V(0, 0, -1), V(-0.130526192, -0.991444861, 0), V(-0.991444861, 0.130526192, 0), "ZXY"))
sketch15.addGeometry(Part.Circle(V(25, -469, 0), V(0, 0, 1), 6), False)
sketch15.addConstraint([
    Sketcher.Constraint("Diameter", 0, Q("0.5 in")),
    Sketcher.Constraint("DistanceX", -1, 1, 0, 3, Q("1 in")),
    Sketcher.Constraint("DistanceY", 0, 3, -1, 1, Q("469.311573 mm")),
])
sketch15.setExpression("Constraints[0]", "Params.sketch15_diameter")
pocket4 = body2.newObject("PartDesign::Pocket", "Pocket003")
pocket4.Profile = sketch15
pocket4.Type = "TwoLengths"
pocket4.setExpression("Length", "Params.pocket4_length")
pocket4.setExpression("Length2", "Params.pocket4_length2")
pocket4.Reversed = True
doc.recompute()

fillet3 = body2.newObject("PartDesign::Fillet", "Fillet002")
fillet3.Base = (pocket4, edges_at(pocket4, [
    (-53.468, -38.1, -22.225),
    (-63.5, 38.1, -22.225),
    (63.5, 38.1, -22.225),
    (53.468, -38.1, -22.225),
    (0, -38.1, -44.45),
    (58.484, 0, -44.45),
    (-58.484, 0, -44.45),
    (0, 38.1, -44.45),
]))
fillet3.setExpression("Radius", "Params.fillet3_radius")

doc.recompute()
